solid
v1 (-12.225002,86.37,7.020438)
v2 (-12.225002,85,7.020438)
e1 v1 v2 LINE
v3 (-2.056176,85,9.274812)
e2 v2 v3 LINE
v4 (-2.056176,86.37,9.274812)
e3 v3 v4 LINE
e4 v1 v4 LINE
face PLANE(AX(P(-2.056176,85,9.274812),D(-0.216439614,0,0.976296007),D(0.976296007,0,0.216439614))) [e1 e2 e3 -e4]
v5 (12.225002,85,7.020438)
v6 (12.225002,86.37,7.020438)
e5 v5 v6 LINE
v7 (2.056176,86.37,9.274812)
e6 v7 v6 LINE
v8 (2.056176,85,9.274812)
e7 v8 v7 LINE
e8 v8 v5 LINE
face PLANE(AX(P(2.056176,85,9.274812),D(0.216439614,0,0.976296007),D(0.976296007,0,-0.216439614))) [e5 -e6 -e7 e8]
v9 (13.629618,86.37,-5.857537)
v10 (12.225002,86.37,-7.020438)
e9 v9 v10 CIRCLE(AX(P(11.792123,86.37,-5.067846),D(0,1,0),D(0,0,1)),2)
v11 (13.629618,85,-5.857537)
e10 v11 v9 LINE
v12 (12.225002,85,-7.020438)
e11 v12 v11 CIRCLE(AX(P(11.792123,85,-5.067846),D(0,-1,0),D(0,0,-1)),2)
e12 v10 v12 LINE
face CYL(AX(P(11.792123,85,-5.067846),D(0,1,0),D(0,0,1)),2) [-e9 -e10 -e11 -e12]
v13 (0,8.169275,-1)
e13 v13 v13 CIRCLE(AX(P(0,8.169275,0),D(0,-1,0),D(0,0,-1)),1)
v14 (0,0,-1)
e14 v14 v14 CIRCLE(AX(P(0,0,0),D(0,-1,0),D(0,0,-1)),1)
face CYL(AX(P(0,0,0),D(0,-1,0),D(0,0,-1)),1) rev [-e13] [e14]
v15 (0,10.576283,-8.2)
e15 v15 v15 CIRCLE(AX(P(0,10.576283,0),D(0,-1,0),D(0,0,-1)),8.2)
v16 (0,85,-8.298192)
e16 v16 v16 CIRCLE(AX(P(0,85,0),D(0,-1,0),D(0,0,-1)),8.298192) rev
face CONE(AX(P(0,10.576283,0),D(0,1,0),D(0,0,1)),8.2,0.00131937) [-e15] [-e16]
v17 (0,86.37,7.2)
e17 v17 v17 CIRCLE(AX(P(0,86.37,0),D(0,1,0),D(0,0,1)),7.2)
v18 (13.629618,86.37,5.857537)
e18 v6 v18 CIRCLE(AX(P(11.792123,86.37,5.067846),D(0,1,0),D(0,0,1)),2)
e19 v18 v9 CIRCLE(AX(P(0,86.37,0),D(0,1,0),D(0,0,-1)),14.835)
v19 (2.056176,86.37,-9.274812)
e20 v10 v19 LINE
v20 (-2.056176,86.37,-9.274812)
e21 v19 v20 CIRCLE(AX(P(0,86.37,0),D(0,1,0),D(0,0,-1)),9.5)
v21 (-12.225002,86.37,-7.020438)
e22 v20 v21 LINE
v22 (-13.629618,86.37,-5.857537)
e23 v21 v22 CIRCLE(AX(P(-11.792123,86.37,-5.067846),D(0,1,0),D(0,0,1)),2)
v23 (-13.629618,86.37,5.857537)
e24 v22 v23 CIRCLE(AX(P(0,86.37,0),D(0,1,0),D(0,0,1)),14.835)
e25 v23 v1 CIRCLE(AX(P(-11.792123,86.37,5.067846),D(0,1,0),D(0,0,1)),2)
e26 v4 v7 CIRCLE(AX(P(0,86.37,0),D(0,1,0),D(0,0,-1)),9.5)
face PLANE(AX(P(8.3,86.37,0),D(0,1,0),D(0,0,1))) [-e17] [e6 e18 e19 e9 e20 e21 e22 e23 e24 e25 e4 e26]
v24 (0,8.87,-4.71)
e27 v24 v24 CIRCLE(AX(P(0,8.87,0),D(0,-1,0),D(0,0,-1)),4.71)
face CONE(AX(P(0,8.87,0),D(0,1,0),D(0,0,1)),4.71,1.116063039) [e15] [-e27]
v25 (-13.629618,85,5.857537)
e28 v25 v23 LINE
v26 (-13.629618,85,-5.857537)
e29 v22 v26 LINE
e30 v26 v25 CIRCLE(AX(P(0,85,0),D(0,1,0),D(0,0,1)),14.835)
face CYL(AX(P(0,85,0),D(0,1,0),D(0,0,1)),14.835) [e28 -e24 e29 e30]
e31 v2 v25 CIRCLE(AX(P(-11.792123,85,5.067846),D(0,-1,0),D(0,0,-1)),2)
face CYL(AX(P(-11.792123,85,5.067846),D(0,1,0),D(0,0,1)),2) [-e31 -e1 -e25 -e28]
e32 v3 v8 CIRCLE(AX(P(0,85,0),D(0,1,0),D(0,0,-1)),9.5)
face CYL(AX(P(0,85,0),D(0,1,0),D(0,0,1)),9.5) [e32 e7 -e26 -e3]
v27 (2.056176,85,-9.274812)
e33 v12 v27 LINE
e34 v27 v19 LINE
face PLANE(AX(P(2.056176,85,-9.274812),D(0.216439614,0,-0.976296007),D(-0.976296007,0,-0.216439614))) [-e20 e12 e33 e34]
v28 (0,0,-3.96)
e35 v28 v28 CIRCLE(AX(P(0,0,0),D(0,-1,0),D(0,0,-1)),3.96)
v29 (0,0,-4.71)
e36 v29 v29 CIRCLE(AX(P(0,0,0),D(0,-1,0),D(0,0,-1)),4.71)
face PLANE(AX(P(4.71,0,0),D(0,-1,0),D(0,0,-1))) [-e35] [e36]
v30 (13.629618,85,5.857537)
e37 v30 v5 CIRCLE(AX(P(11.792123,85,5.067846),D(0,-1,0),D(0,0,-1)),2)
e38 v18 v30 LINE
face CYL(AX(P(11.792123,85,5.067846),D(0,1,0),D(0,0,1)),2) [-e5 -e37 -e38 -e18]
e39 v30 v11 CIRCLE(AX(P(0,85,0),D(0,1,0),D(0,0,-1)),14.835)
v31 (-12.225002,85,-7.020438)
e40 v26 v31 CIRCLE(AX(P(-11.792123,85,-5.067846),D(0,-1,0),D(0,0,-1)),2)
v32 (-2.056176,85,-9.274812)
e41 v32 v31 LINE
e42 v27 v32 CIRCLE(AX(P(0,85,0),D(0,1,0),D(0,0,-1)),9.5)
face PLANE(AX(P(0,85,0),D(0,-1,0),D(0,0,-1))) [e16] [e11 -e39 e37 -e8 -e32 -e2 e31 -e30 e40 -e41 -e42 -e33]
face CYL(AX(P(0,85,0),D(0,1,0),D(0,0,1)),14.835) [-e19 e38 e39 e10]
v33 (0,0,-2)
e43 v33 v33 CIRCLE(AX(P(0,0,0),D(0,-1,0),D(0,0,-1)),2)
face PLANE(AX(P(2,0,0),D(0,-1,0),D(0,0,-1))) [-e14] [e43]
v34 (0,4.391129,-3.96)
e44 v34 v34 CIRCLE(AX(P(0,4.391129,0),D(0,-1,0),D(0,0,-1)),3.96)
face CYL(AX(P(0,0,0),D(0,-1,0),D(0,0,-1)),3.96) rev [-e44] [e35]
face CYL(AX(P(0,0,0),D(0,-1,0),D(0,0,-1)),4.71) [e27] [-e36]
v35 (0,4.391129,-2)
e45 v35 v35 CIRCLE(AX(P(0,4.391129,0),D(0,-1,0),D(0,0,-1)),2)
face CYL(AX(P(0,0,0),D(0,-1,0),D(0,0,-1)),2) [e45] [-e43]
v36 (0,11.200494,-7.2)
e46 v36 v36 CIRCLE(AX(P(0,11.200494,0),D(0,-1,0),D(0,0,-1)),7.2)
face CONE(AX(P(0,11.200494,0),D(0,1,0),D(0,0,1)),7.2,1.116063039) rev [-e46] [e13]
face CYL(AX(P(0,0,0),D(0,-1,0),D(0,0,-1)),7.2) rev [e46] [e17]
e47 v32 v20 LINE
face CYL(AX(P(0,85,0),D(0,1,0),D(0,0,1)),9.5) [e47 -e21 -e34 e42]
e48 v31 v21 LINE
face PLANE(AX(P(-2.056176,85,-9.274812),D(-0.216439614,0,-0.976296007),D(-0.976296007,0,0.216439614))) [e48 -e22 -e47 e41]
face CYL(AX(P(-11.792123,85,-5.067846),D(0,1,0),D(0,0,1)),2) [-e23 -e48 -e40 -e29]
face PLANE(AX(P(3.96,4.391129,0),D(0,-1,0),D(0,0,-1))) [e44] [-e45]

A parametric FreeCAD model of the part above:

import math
import FreeCAD as App
import Part
import Sketcher
Q = App.Units.Quantity


def edges_at(feature, points):
    """Names of the edges that pass closest to the given points."""
    edges = feature.Shape.Edges
    near = lambda p: min(range(len(edges)), key=lambda i: edges[i].distToShape(Part.Vertex(*p))[0])
    return sorted({f"Edge{near(p) + 1}" for p in points})

doc = App.newDocument("Part")
body = doc.addObject("PartDesign::Body", "Body")

sketch1 = doc.addObject("Sketcher::SketchObject", "Sketch")
body.addObject(sketch1)
sketch1.AttachmentSupport = (doc.XY_Plane, [""])
sketch1.MapMode = "FlatFace"
sketch1.addGeometry([
    Part.LineSegment(App.Vector(8.2, 10.576283, 0), App.Vector(8.3, 86.37, 0)),
    Part.LineSegment(App.Vector(8.3, 86.37, 0), App.Vector(7.2, 86.37, 0)),
    Part.LineSegment(App.Vector(7.2, 86.37, 0), App.Vector(7.2, 11.200494, 0)),
    Part.LineSegment(App.Vector(7.2, 11.200494, 0), App.Vector(1, 8.169275, 0)),
    Part.LineSegment(App.Vector(1, 8.169275, 0), App.Vector(1, 0, 0)),
    Part.LineSegment(App.Vector(1, 0, 0), App.Vector(2, 0, 0)),
    Part.LineSegment(App.Vector(2, 0, 0), App.Vector(2, 4.391129, 0)),
    Part.LineSegment(App.Vector(2, 4.391129, 0), App.Vector(3.96, 4.391129, 0)),
    Part.LineSegment(App.Vector(3.96, 4.391129, 0), App.Vector(3.96, 0, 0)),
    Part.LineSegment(App.Vector(3.96, 0, 0), App.Vector(4.71, 0, 0)),
    Part.LineSegment(App.Vector(4.71, 0, 0), App.Vector(4.71, 8.87, 0)),
    Part.LineSegment(App.Vector(4.71, 8.87, 0), App.Vector(8.2, 10.576283, 0)),
], False)
sketch1.addConstraint([
    Sketcher.Constraint("Coincident", 0, 2, 1, 1),
    Sketcher.Constraint("Coincident", 1, 2, 2, 1),
    Sketcher.Constraint("Coincident", 2, 2, 3, 1),
    Sketcher.Constraint("Coincident", 3, 2, 4, 1),
    Sketcher.Constraint("Coincident", 4, 2, 5, 1),
    Sketcher.Constraint("Coincident", 5, 2, 6, 1),
    Sketcher.Constraint("Coincident", 6, 2, 7, 1),
    Sketcher.Constraint("Coincident", 7, 2, 8, 1),
    Sketcher.Constraint("Coincident", 8, 2, 9, 1),
    Sketcher.Constraint("Coincident", 9, 2, 10, 1),
    Sketcher.Constraint("Coincident", 10, 2, 11, 1),
    Sketcher.Constraint("Coincident", 11, 2, 0, 1),
    Sketcher.Constraint("Horizontal", 1),
    Sketcher.Constraint("Vertical", 2),
    Sketcher.Constraint("Vertical", 4),
    Sketcher.Constraint("Horizontal", 5),
    Sketcher.Constraint("Vertical", 6),
    Sketcher.Constraint("Horizontal", 7),
    Sketcher.Constraint("Vertical", 8),
    Sketcher.Constraint("Horizontal", 9),
    Sketcher.Constraint("Vertical", 10),
    Sketcher.Constraint("PointOnObject", 4, 2, -1),
    Sketcher.Constraint("PointOnObject", 8, 2, -1),
    Sketcher.Constraint("Parallel", 3, 11),
    Sketcher.Constraint("DistanceX", 5, 1, 5, 2, Q("1 mm")),
    Sketcher.Constraint("DistanceX", 1, 2, 1, 1, Q("1.1 mm")),
    Sketcher.Constraint("DistanceX", -1, 1, 3, 2, Q("1 mm")),
    Sketcher.Constraint("DistanceX", 2, 2, 11, 2, Q("1 mm")),
    Sketcher.Constraint("DistanceX", 7, 1, 7, 2, Q("1.96 mm")),
    Sketcher.Constraint("DistanceX", 9, 1, 9, 2, Q("0.75 mm")),
    Sketcher.Constraint("DistanceY", 10, 1, 10, 2, Q("8.87 mm")),
    Sketcher.Constraint("DistanceX", -1, 1, 0, 2, Q("8.3 mm")),
    Sketcher.Constraint("DistanceY", -1, 1, 0, 2, Q("86.37 mm")),
    Sketcher.Constraint("DistanceY", 6, 1, 6, 2, Q("4.391129 mm")),
    Sketcher.Constraint("Distance", 11, Q("3.884778 mm")),
    Sketcher.Constraint("DistanceY", 2, 2, 2, 1, Q("75.169506 mm")),
])
revolution = doc.addObject("PartDesign::Revolution", "Revolution")
body.addObject(revolution)
revolution.Profile = sketch1
revolution.ReferenceAxis = (sketch1, ["V_Axis"])
revolution.Angle = 360

sketch2 = doc.addObject("Sketcher::SketchObject", "Sketch001")
body.addObject(sketch2)
sketch2.AttachmentSupport = (doc.XZ_Plane, [""])
sketch2.MapMode = "FlatFace"
sketch2.AttachmentOffset = App.Placement(App.Vector(0, 0, -86.37), App.Rotation())
sketch2.addGeometry([
    Part.LineSegment(App.Vector(13.180264, -6.808661, 0), App.Vector(2.056176, -9.274812, 0)),
    Part.ArcOfCircle(Part.Circle(App.Vector(0, 0, 0), App.Vector(0, 0, 1), 9.5), math.radians(-102.5), math.radians(-77.5)),
    Part.LineSegment(App.Vector(-2.056176, -9.274812, 0), App.Vector(-13.180264, -6.808661, 0)),
    Part.ArcOfCircle(Part.Circle(App.Vector(0, 0, 0), App.Vector(0, 0, 1), 14.835), math.radians(152.680027), math.radians(207.319973)),
    Part.LineSegment(App.Vector(-13.180264, 6.808661, 0), App.Vector(-2.056176, 9.274812, 0)),
    Part.ArcOfCircle(Part.Circle(App.Vector(0, 0, 0), App.Vector(0, 0, 1), 9.5), math.radians(77.5), math.radians(102.5)),
    Part.LineSegment(App.Vector(2.056176, 9.274812, 0), App.Vector(13.180264, 6.808661, 0)),
    Part.ArcOfCircle(Part.Circle(App.Vector(0, 0, 0), App.Vector(0, 0, 1), 14.835), math.radians(-27.319973), math.radians(27.319973)),
], False)
sketch2.addConstraint([
    Sketcher.Constraint("Tangent", 0, 2, 1, 2),
    Sketcher.Constraint("Tangent", 1, 1, 2, 1),
    Sketcher.Constraint("Coincident", 2, 2, 3, 2),
    Sketcher.Constraint("Coincident", 3, 1, 4, 1),
    Sketcher.Constraint("Tangent", 4, 2, 5, 2),
    Sketcher.Constraint("Tangent", 5, 1, 6, 1),
    Sketcher.Constraint("Coincident", 6, 2, 7, 2),
    Sketcher.Constraint("Coincident", 7, 1, 0, 1),
    Sketcher.Constraint("Coincident", 1, 3, -1, 1),
    Sketcher.Constraint("Coincident", 3, 3, -1, 1),
    Sketcher.Constraint("Coincident", 5, 3, -1, 1),
    Sketcher.Constraint("Coincident", 7, 3, -1, 1),
    Sketcher.Constraint("Equal", 1, 5),
    Sketcher.Constraint("Equal", 3, 7),
    Sketcher.Constraint("Parallel", 0, 4),
    Sketcher.Constraint("Parallel", 2, 6),
    Sketcher.Constraint("Horizontal", 0, 2, 1, 1),
    Sketcher.Constraint("Radius", 1, Q("9.5 mm")),
    Sketcher.Constraint("Angle", 0, Q("-167.5 deg")),
    Sketcher.Constraint("Radius", 3, Q("14.835 mm")),
])
pad1 = doc.addObject("PartDesign::Pad", "Pad")
body.addObject(pad1)
pad1.Profile = sketch2
pad1.Length = 1.37
doc.recompute()

fillet = doc.addObject("PartDesign::Fillet", "Fillet")
body.addObject(fillet)
fillet.Base = (pad1, edges_at(pad1, [
    (13.18, 85.685, -6.809),
    (13.18, 85.685, 6.809),
    (-13.18, 85.685, 6.809),
    (-13.18, 85.685, -6.809),
]))
fillet.Radius = 2

sketch3 = doc.addObject("Sketcher::SketchObject", "Sketch002")
body.addObject(sketch3)
sketch3.AttachmentSupport = (doc.XZ_Plane, [""])
sketch3.MapMode = "FlatFace"
sketch3.AttachmentOffset = App.Placement(App.Vector(0, 0, -86.37), App.Rotation())
sketch3.addGeometry(Part.Circle(App.Vector(0, 0, 0), App.Vector(0, 0, 1), 7.2), False)
sketch3.addConstraint([
    Sketcher.Constraint("Coincident", 0, 3, -1, 1),
    Sketcher.Constraint("Diameter", 0, Q("14.4 mm")),
])
pocket1 = doc.addObject("PartDesign::Pocket", "Pocket")
body.addObject(pocket1)
pocket1.Profile = sketch3
pocket1.Type = "UpToFirst"
pocket1.Reversed = True

doc.recompute()
